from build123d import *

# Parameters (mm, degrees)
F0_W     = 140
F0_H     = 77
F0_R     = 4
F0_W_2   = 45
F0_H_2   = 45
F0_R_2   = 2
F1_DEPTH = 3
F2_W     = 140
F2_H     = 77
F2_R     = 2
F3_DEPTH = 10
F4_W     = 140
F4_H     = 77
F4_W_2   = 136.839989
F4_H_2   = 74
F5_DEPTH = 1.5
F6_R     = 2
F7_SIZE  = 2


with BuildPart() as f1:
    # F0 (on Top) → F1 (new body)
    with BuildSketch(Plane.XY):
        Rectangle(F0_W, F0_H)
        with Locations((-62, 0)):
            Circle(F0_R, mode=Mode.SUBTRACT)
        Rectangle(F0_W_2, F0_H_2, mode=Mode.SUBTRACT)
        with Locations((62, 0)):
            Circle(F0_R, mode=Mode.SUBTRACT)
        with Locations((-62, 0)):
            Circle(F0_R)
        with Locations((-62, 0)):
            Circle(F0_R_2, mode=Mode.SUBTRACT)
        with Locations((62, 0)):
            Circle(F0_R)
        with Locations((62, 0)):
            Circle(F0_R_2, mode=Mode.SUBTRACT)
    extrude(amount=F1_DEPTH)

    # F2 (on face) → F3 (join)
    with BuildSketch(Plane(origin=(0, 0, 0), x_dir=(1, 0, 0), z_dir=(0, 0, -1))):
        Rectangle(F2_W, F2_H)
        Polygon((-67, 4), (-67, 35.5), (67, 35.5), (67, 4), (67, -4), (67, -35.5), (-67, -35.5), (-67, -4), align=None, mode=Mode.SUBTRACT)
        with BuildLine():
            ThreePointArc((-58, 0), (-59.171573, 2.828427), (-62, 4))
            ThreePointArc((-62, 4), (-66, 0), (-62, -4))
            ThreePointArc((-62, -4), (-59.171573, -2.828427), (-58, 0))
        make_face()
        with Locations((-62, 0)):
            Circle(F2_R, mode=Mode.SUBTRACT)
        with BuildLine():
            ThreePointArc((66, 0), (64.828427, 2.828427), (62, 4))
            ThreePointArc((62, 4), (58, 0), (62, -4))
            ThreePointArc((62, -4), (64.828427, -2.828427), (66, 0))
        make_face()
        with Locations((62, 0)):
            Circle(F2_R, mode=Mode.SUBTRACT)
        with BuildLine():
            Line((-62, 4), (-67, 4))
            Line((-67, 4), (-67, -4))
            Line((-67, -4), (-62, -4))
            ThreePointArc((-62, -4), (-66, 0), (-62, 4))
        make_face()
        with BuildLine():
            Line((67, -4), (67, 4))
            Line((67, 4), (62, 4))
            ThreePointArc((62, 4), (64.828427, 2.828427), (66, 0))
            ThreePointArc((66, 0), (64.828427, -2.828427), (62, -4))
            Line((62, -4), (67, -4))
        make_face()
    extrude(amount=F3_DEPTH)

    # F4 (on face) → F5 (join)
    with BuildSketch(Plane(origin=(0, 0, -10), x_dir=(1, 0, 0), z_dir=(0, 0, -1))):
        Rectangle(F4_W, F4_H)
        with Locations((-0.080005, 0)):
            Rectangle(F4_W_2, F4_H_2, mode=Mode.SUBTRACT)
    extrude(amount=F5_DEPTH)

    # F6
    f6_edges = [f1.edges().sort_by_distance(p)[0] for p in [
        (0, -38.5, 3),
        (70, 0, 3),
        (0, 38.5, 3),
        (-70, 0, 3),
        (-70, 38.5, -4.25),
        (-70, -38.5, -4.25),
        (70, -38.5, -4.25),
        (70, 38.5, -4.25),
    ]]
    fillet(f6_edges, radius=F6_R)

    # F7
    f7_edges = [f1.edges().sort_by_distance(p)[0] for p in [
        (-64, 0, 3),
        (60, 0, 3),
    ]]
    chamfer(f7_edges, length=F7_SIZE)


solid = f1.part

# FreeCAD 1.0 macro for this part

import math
import FreeCAD as App
import Part
import Sketcher

V = App.Vector


def edges_at(feature, points):
    """Names of the edges that pass closest to the given points."""
    edges = feature.Shape.Edges
    near = lambda p: min(range(len(edges)), key=lambda i: edges[i].distToShape(Part.Vertex(*p))[0])
    return sorted({f"Edge{near(p) + 1}" for p in points})

doc = App.newDocument("Part")
body = doc.addObject("PartDesign::Body", "Body")

# Sketch on XY plane
sketch1 = body.newObject("Sketcher::SketchObject", "Sketch")
sketch1.AttachmentSupport = (doc.getObject("XY_Plane"), [""])
sketch1.MapMode = "FlatFace"
sketch1.addGeometry([
    Part.LineSegment(V(-70, 38.5, 0), V(-70, -38.5, 0)),  # 0
    Part.LineSegment(V(-70, -38.5, 0), V(70, -38.5, 0)),  # 1
    Part.LineSegment(V(70, -38.5, 0), V(70, 38.5, 0)),  # 2
    Part.LineSegment(V(70, 38.5, 0), V(-70, 38.5, 0)),  # 3
    Part.Circle(V(-62, 0, 0), V(0, 0, 1), 2),  # 4
    Part.LineSegment(V(22.5, -22.5, 0), V(-22.5, -22.5, 0)),  # 5
    Part.LineSegment(V(-22.5, -22.5, 0), V(-22.5, 22.5, 0)),  # 6
    Part.LineSegment(V(-22.5, 22.5, 0), V(22.5, 22.5, 0)),  # 7
    Part.LineSegment(V(22.5, 22.5, 0), V(22.5, -22.5, 0)),  # 8
    Part.Circle(V(62, 0, 0), V(0, 0, 1), 2),  # 9
], False)
sketch1.addConstraint([
    Sketcher.Constraint("Coincident", 0, 2, 1, 1),
    Sketcher.Constraint("Coincident", 1, 2, 2, 1),
    Sketcher.Constraint("Coincident", 2, 2, 3, 1),
    Sketcher.Constraint("Coincident", 3, 2, 0, 1),
    Sketcher.Constraint("Coincident", 5, 2, 6, 1),
    Sketcher.Constraint("Coincident", 6, 2, 7, 1),
    Sketcher.Constraint("Coincident", 7, 2, 8, 1),
    Sketcher.Constraint("Coincident", 8, 2, 5, 1),
    Sketcher.Constraint("Vertical", 0),
    Sketcher.Constraint("Horizontal", 1),
    Sketcher.Constraint("Vertical", 2),
    Sketcher.Constraint("Horizontal", 3),
    Sketcher.Constraint("Horizontal", 5),
    Sketcher.Constraint("Vertical", 6),
    Sketcher.Constraint("Horizontal", 7),
    Sketcher.Constraint("Vertical", 8),
    Sketcher.Constraint("Equal", 4, 9),
    Sketcher.Constraint("Symmetric", 4, 3, 9, 3, -1, 1),
    Sketcher.Constraint("Symmetric", 0, 2, 2, 2, -1, 1),
    Sketcher.Constraint("Symmetric", 5, 2, 7, 2, -1, 1),
    Sketcher.Constraint("PointOnObject", 4, 3, -1),
    Sketcher.Constraint("Equal", 7, 6),
    Sketcher.Constraint("Diameter", 4, 4.0),
    Sketcher.Constraint("DistanceX", 1, 1, 1, 2, 140.0),
    Sketcher.Constraint("DistanceX", 5, 2, 5, 1, 45.0),
    Sketcher.Constraint("DistanceY", 0, 2, 0, 1, 77.0),
    Sketcher.Constraint("DistanceX", 4, 3, -1, 1, 62.0),
])
pad1 = body.newObject("PartDesign::Pad", "Pad")
pad1.Profile = sketch1
pad1.Length = 3

# Sketch on XY plane
sketch2 = body.newObject("Sketcher::SketchObject", "Sketch001")
sketch2.AttachmentSupport = (doc.getObject("XY_Plane"), [""])
sketch2.MapMode = "FlatFace"
sketch2.addGeometry([
    Part.LineSegment(V(-70, -38.5, 0), V(-70, 38.5, 0)),  # 0
    Part.LineSegment(V(-70, 38.5, 0), V(70, 38.5, 0)),  # 1
    Part.LineSegment(V(70, 38.5, 0), V(70, -38.5, 0)),  # 2
    Part.LineSegment(V(70, -38.5, 0), V(-70, -38.5, 0)),  # 3
    Part.LineSegment(V(-67, 35.5, 0), V(-67, 4, 0)),  # 4
    Part.LineSegment(V(-67, 4, 0), V(-62, 4, 0)),  # 5
    Part.ArcOfCircle(Part.Circle(V(-62, 0, 0), V(0, 0, 1), 4), math.radians(0.000006), math.radians(89.999994)),  # 6
    Part.ArcOfCircle(Part.Circle(V(-62, 0, 0), V(0, 0, 1), 4), math.radians(-89.999994), math.radians(-0.000006)),  # 7
    Part.LineSegment(V(-62, -4, 0), V(-67, -4, 0)),  # 8
    Part.LineSegment(V(-67, -4, 0), V(-67, -35.5, 0)),  # 9
    Part.LineSegment(V(-67, -35.5, 0), V(67, -35.5, 0)),  # 10
    Part.LineSegment(V(67, -35.5, 0), V(67, -4, 0)),  # 11
    Part.LineSegment(V(67, -4, 0), V(62, -4, 0)),  # 12
    Part.ArcOfCircle(Part.Circle(V(62, 0, 0), V(0, 0, 1), 4), math.radians(90), math.radians(270)),  # 13
    Part.LineSegment(V(62, 4, 0), V(67, 4, 0)),  # 14
    Part.LineSegment(V(67, 4, 0), V(67, 35.5, 0)),  # 15
    Part.LineSegment(V(67, 35.5, 0), V(-67, 35.5, 0)),  # 16
    Part.Circle(V(-62, 0, 0), V(0, 0, 1), 2),  # 17
    Part.Circle(V(62, 0, 0), V(0, 0, 1), 2),  # 18
], False)
sketch2.addConstraint([
    Sketcher.Constraint("Coincident", 0, 2, 1, 1),
    Sketcher.Constraint("Coincident", 1, 2, 2, 1),
    Sketcher.Constraint("Coincident", 2, 2, 3, 1),
    Sketcher.Constraint("Coincident", 3, 2, 0, 1),
    Sketcher.Constraint("Coincident", 4, 2, 5, 1),
    Sketcher.Constraint("Tangent", 5, 2, 6, 2),
    Sketcher.Constraint("Tangent", 6, 1, 7, 2),
    Sketcher.Constraint("Tangent", 7, 1, 8, 1),
    Sketcher.Constraint("Coincident", 8, 2, 9, 1),
    Sketcher.Constraint("Coincident", 9, 2, 10, 1),
    Sketcher.Constraint("Coincident", 10, 2, 11, 1),
    Sketcher.Constraint("Coincident", 11, 2, 12, 1),
    Sketcher.Constraint("Tangent", 12, 2, 13, 2),
    Sketcher.Constraint("Tangent", 13, 1, 14, 1),
    Sketcher.Constraint("Coincident", 14, 2, 15, 1),
    Sketcher.Constraint("Coincident", 15, 2, 16, 1),
    Sketcher.Constraint("Coincident", 16, 2, 4, 1),
    Sketcher.Constraint("Vertical", 0),
    Sketcher.Constraint("Horizontal", 1),
    Sketcher.Constraint("Vertical", 2),
    Sketcher.Constraint("Horizontal", 3),
    Sketcher.Constraint("Vertical", 4),
    Sketcher.Constraint("Horizontal", 5),
    Sketcher.Constraint("Horizontal", 8),
    Sketcher.Constraint("Vertical", 9),
    Sketcher.Constraint("Horizontal", 10),
    Sketcher.Constraint("Vertical", 11),
    Sketcher.Constraint("Horizontal", 12),
    Sketcher.Constraint("Horizontal", 14),
    Sketcher.Constraint("Vertical", 15),
    Sketcher.Constraint("Horizontal", 16),
    Sketcher.Constraint("Coincident", 17, 3, 6, 3),
    Sketcher.Constraint("Coincident", 18, 3, 13, 3),
    Sketcher.Constraint("Equal", 6, 7),
    Sketcher.Constraint("Equal", 7, 13),
    Sketcher.Constraint("Equal", 17, 18),
    Sketcher.Constraint("Symmetric", 6, 3, 13, 3, -1, 1),
    Sketcher.Constraint("Symmetric", 0, 2, 2, 2, -1, 1),
    Sketcher.Constraint("Symmetric", 9, 2, 15, 2, -1, 1),
    Sketcher.Constraint("Symmetric", 8, 2, 11, 2, -2),
    Sketcher.Constraint("PointOnObject", 6, 1, -1),
    Sketcher.Constraint("Vertical", 4, 2, 8, 2),
    Sketcher.Constraint("Diameter", 17, 4.0),
    Sketcher.Constraint("Radius", 6, 4.0),
    Sketcher.Constraint("DistanceX", 1, 1, 1, 2, 140.0),
    Sketcher.Constraint("DistanceX", 5, 1, 5, 2, 5.0),
    Sketcher.Constraint("DistanceX", 10, 1, 10, 2, 134.0),
    Sketcher.Constraint("DistanceY", 0, 1, 0, 2, 77.0),
    Sketcher.Constraint("DistanceY", 4, 2, 4, 1, 31.5),
])
pad2 = body.newObject("PartDesign::Pad", "Pad001")
pad2.Profile = sketch2
pad2.Length = 10
pad2.Reversed = True

# Sketch on XY plane
sketch3 = body.newObject("Sketcher::SketchObject", "Sketch002")
sketch3.AttachmentSupport = (doc.getObject("XY_Plane"), [""])
sketch3.MapMode = "FlatFace"
sketch3.AttachmentOffset = App.Placement(V(0, 0, -10), App.Rotation())
sketch3.addGeometry([
    Part.LineSegment(V(-70, -38.5, 0), V(-70, 38.5, 0)),  # 0
    Part.LineSegment(V(-70, 38.5, 0), V(70, 38.5, 0)),  # 1
    Part.LineSegment(V(70, 38.5, 0), V(70, -38.5, 0)),  # 2
    Part.LineSegment(V(70, -38.5, 0), V(-70, -38.5, 0)),  # 3
    Part.LineSegment(V(68.33999, 37, 0), V(-68.5, 37, 0)),  # 4
    Part.LineSegment(V(-68.5, 37, 0), V(-68.5, -37, 0)),  # 5
    Part.LineSegment(V(-68.5, -37, 0), V(68.33999, -37, 0)),  # 6
    Part.LineSegment(V(68.33999, -37, 0), V(68.33999, 37, 0)),  # 7
], False)
sketch3.addConstraint([
    Sketcher.Constraint("Coincident", 0, 2, 1, 1),
    Sketcher.Constraint("Coincident", 1, 2, 2, 1),
    Sketcher.Constraint("Coincident", 2, 2, 3, 1),
    Sketcher.Constraint("Coincident", 3, 2, 0, 1),
    Sketcher.Constraint("Coincident", 4, 2, 5, 1),
    Sketcher.Constraint("Coincident", 5, 2, 6, 1),
    Sketcher.Constraint("Coincident", 6, 2, 7, 1),
    Sketcher.Constraint("Coincident", 7, 2, 4, 1),
    Sketcher.Constraint("Vertical", 0),
    Sketcher.Constraint("Horizontal", 1),
    Sketcher.Constraint("Vertical", 2),
    Sketcher.Constraint("Horizontal", 3),
    Sketcher.Constraint("Horizontal", 4),
    Sketcher.Constraint("Vertical", 5),
    Sketcher.Constraint("Horizontal", 6),
    Sketcher.Constraint("Vertical", 7),
    Sketcher.Constraint("Symmetric", 0, 2, 2, 2, -1, 1),
    Sketcher.Constraint("DistanceX", 1, 1, 1, 2, 140.0),
    Sketcher.Constraint("DistanceY", 0, 1, 0, 2, 77.0),
    Sketcher.Constraint("DistanceY", 5, 2, 5, 1, 74.0),
    Sketcher.Constraint("DistanceY", -1, 1, 4, 2, 37.0),
    Sketcher.Constraint("DistanceX", 4, 2, -1, 1, 68.5),
    Sketcher.Constraint("DistanceX", 4, 2, 4, 1, 136.839989),
])
pad3 = body.newObject("PartDesign::Pad", "Pad002")
pad3.Profile = sketch3
pad3.Length = 1.5
pad3.Reversed = True
doc.recompute()

fillet = body.newObject("PartDesign::Fillet", "Fillet")
fillet.Base = (pad3, edges_at(pad3, [
    (0, -38.5, 3),
    (70, 0, 3),
    (0, 38.5, 3),
    (-70, 0, 3),
    (-70, 38.5, -4.25),
    (-70, -38.5, -4.25),
    (70, -38.5, -4.25),
    (70, 38.5, -4.25),
]))
fillet.Radius = 2
doc.recompute()

chamfer = body.newObject("PartDesign::Chamfer", "Chamfer")
chamfer.Base = (fillet, edges_at(fillet, [(-64, 0, 3), (60, 0, 3)]))
chamfer.Size = 2

doc.recompute()
